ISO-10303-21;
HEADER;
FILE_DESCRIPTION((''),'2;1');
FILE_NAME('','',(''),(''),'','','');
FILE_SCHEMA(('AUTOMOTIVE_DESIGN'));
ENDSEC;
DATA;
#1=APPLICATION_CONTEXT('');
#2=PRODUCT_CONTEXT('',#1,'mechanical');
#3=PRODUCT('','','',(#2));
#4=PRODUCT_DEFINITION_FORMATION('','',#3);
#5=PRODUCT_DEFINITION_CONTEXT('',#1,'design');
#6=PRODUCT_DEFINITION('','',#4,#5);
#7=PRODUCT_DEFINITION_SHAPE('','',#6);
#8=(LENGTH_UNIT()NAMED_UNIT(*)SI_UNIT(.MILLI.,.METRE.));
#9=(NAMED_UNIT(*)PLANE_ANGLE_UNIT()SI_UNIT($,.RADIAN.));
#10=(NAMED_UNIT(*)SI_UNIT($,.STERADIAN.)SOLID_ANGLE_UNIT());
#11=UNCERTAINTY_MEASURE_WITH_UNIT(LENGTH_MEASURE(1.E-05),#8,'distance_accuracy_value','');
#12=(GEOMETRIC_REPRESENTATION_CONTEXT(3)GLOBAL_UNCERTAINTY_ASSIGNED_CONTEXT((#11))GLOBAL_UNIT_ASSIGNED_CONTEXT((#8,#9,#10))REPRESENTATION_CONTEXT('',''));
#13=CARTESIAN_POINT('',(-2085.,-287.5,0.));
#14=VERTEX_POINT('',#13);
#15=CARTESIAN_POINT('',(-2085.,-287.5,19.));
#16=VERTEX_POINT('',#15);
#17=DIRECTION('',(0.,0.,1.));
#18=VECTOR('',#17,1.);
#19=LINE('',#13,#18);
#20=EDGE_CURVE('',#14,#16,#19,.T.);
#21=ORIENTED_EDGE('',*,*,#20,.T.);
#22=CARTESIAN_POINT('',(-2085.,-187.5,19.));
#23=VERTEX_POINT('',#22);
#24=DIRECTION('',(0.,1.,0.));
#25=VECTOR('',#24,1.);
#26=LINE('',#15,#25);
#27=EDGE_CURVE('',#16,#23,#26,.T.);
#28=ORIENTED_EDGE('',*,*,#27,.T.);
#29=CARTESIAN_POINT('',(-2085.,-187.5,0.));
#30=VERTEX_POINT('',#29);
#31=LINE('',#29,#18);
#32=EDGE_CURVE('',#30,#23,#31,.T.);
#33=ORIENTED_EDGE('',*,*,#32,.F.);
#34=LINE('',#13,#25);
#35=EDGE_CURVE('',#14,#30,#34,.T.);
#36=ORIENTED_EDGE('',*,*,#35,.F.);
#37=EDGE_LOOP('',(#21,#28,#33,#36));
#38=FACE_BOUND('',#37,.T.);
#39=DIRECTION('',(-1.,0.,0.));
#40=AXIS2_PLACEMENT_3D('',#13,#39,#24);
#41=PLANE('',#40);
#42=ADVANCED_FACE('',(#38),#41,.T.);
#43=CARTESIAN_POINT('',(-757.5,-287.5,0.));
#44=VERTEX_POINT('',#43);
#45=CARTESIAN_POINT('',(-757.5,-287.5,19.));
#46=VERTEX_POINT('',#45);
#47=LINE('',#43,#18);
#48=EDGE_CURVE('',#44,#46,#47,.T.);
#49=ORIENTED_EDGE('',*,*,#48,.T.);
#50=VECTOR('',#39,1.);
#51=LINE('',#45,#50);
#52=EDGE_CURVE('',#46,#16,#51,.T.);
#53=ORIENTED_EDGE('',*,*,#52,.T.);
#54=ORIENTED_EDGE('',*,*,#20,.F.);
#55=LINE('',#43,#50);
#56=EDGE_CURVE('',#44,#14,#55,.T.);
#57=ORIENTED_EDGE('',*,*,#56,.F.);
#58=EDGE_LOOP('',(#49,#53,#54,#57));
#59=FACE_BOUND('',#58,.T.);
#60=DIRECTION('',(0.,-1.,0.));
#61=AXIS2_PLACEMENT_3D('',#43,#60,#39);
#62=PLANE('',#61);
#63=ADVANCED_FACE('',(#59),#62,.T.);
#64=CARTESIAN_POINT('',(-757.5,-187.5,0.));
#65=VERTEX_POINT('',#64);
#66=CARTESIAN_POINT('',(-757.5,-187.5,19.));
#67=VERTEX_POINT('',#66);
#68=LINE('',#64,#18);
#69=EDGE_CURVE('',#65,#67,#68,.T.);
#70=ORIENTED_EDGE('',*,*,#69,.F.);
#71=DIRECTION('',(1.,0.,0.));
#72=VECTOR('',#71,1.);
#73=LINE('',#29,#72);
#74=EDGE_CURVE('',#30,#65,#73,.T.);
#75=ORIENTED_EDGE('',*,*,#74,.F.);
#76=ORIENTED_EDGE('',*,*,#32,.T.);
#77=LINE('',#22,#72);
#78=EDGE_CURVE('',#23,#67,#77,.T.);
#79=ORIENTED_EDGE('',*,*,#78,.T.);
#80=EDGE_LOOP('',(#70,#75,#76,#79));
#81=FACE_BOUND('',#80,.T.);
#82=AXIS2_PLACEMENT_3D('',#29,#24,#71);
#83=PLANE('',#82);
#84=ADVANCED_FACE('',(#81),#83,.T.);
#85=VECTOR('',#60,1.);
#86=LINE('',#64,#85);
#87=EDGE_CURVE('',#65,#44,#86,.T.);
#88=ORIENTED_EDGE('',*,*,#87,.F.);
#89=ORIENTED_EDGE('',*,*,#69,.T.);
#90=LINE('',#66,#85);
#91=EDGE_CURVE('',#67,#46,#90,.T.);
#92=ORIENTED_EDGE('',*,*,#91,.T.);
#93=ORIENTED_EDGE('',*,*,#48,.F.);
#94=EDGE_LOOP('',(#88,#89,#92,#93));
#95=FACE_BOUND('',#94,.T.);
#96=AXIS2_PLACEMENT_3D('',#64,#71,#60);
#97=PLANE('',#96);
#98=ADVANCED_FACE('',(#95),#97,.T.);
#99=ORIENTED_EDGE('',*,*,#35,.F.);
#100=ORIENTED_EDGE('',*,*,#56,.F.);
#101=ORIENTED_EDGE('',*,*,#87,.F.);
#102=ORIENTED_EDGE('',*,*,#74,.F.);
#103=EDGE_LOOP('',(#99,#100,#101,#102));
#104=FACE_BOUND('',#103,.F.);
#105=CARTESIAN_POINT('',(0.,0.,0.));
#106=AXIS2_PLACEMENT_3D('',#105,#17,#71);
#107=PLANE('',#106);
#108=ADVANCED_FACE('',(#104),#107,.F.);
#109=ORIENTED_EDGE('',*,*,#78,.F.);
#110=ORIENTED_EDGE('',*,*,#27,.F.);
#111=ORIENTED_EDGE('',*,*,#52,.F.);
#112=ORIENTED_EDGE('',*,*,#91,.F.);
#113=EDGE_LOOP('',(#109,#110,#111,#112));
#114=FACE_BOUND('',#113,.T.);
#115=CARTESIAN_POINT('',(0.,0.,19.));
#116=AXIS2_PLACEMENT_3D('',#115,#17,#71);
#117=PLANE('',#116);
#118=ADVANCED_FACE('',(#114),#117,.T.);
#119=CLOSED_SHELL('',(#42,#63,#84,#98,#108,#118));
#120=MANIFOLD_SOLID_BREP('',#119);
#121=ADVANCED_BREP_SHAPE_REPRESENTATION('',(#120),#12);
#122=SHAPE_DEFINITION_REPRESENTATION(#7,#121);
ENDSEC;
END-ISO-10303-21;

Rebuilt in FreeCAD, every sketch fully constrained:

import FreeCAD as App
import Part
import Sketcher

V = App.Vector
Q = App.Units.Quantity

doc = App.newDocument("Part")
body = doc.addObject("PartDesign::Body", "Body")

# Sketch on XY plane
sketch1 = doc.addObject("Sketcher::SketchObject", "Sketch")
body.addObject(sketch1)
sketch1.AttachmentSupport = (doc.XY_Plane, [""])
sketch1.MapMode = "FlatFace"
sketch1.addGeometry(Part.LineSegment(V(-758, -188, 0), V(-2085, -188, 0)), False)
sketch1.addGeometry(Part.LineSegment(V(-2085, -188, 0), V(-2085, -288, 0)), False)
sketch1.addGeometry(Part.LineSegment(V(-2085, -288, 0), V(-758, -288, 0)), False)
sketch1.addGeometry(Part.LineSegment(V(-758, -288, 0), V(-758, -188, 0)), False)
sketch1.addConstraint(Sketcher.Constraint("Coincident", 0, 2, 1, 1))
sketch1.addConstraint(Sketcher.Constraint("Coincident", 1, 2, 2, 1))
sketch1.addConstraint(Sketcher.Constraint("Coincident", 2, 2, 3, 1))
sketch1.addConstraint(Sketcher.Constraint("Coincident", 3, 2, 0, 1))
sketch1.addConstraint(Sketcher.Constraint("Horizontal", 0))
sketch1.addConstraint(Sketcher.Constraint("Vertical", 1))
sketch1.addConstraint(Sketcher.Constraint("Horizontal", 2))
sketch1.addConstraint(Sketcher.Constraint("Vertical", 3))
sketch1.addConstraint(Sketcher.Constraint("DistanceY", 1, 2, 1, 1, Q("100 mm")))
sketch1.addConstraint(Sketcher.Constraint("DistanceX", 0, 2, 0, 1, Q("1327.5 mm")))
sketch1.addConstraint(Sketcher.Constraint("DistanceX", 0, 2, -1, 1, Q("2085 mm")))
sketch1.addConstraint(Sketcher.Constraint("DistanceY", 0, 2, -1, 1, Q("187.5 mm")))
pad1 = doc.addObject("PartDesign::Pad", "Pad")
body.addObject(pad1)
pad1.Profile = sketch1
pad1.Length = 19

doc.recompute()
